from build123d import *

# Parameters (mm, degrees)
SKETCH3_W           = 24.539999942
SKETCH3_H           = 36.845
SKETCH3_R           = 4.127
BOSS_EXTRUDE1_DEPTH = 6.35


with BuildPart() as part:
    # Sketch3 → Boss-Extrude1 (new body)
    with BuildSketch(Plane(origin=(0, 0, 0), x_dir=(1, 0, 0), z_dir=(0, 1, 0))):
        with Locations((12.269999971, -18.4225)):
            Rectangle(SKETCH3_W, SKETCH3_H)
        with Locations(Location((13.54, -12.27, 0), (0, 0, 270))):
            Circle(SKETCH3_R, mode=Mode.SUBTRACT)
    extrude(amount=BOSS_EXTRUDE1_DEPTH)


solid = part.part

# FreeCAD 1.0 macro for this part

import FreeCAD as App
import Part
import Sketcher

V = App.Vector
Q = App.Units.Quantity


def add_polygon(sketch, points):
    """Adds a closed chain of lines whose ends are joined by coincident constraints."""
    first, n = sketch.GeometryCount, len(points)
    for a, b in zip(points, points[1:] + points[:1]):
        sketch.addGeometry(Part.LineSegment(App.Vector(*a, 0), App.Vector(*b, 0)), False)
    for i in range(n):
        sketch.addConstraint(Sketcher.Constraint("Coincident", first + i, 2, first + (i + 1) % n, 1))

doc = App.newDocument("Part")
body = doc.addObject("PartDesign::Body", "Body")

# Sketch on XZ plane
sketch1 = body.newObject("Sketcher::SketchObject", "Sketch")
sketch1.AttachmentSupport = (doc.getObject("XZ_Plane"), [""])
sketch1.MapMode = "FlatFace"
add_polygon(sketch1, [(0, 0), (0, 36.8), (24.5, 36.8), (24.5, 0)])  # lines 0-3
sketch1.addGeometry(Part.Circle(V(13.5, 12.3, 0), V(0, 0, 1), 4.1), False)  # 4
sketch1.addConstraint(Sketcher.Constraint("Vertical", 0))
sketch1.addConstraint(Sketcher.Constraint("Horizontal", 1))
sketch1.addConstraint(Sketcher.Constraint("Vertical", 2))
sketch1.addConstraint(Sketcher.Constraint("Horizontal", 3))
sketch1.addConstraint(Sketcher.Constraint("Coincident", 3, 2, -1, 1))
sketch1.addConstraint(Sketcher.Constraint("Diameter", 4, 8.254))
sketch1.addConstraint(Sketcher.Constraint("DistanceX", 1, 1, 1, 2, 24.54))
sketch1.addConstraint(Sketcher.Constraint("DistanceY", 0, 1, 0, 2, 36.845))
sketch1.addConstraint(Sketcher.Constraint("DistanceX", -1, 1, 4, 3, 13.54))
sketch1.addConstraint(Sketcher.Constraint("DistanceY", -1, 1, 4, 3, 12.27))
pad1 = body.newObject("PartDesign::Pad", "Pad")
pad1.Profile = sketch1
pad1.Length = Q("0.25 in")
pad1.Reversed = True

doc.recompute()
